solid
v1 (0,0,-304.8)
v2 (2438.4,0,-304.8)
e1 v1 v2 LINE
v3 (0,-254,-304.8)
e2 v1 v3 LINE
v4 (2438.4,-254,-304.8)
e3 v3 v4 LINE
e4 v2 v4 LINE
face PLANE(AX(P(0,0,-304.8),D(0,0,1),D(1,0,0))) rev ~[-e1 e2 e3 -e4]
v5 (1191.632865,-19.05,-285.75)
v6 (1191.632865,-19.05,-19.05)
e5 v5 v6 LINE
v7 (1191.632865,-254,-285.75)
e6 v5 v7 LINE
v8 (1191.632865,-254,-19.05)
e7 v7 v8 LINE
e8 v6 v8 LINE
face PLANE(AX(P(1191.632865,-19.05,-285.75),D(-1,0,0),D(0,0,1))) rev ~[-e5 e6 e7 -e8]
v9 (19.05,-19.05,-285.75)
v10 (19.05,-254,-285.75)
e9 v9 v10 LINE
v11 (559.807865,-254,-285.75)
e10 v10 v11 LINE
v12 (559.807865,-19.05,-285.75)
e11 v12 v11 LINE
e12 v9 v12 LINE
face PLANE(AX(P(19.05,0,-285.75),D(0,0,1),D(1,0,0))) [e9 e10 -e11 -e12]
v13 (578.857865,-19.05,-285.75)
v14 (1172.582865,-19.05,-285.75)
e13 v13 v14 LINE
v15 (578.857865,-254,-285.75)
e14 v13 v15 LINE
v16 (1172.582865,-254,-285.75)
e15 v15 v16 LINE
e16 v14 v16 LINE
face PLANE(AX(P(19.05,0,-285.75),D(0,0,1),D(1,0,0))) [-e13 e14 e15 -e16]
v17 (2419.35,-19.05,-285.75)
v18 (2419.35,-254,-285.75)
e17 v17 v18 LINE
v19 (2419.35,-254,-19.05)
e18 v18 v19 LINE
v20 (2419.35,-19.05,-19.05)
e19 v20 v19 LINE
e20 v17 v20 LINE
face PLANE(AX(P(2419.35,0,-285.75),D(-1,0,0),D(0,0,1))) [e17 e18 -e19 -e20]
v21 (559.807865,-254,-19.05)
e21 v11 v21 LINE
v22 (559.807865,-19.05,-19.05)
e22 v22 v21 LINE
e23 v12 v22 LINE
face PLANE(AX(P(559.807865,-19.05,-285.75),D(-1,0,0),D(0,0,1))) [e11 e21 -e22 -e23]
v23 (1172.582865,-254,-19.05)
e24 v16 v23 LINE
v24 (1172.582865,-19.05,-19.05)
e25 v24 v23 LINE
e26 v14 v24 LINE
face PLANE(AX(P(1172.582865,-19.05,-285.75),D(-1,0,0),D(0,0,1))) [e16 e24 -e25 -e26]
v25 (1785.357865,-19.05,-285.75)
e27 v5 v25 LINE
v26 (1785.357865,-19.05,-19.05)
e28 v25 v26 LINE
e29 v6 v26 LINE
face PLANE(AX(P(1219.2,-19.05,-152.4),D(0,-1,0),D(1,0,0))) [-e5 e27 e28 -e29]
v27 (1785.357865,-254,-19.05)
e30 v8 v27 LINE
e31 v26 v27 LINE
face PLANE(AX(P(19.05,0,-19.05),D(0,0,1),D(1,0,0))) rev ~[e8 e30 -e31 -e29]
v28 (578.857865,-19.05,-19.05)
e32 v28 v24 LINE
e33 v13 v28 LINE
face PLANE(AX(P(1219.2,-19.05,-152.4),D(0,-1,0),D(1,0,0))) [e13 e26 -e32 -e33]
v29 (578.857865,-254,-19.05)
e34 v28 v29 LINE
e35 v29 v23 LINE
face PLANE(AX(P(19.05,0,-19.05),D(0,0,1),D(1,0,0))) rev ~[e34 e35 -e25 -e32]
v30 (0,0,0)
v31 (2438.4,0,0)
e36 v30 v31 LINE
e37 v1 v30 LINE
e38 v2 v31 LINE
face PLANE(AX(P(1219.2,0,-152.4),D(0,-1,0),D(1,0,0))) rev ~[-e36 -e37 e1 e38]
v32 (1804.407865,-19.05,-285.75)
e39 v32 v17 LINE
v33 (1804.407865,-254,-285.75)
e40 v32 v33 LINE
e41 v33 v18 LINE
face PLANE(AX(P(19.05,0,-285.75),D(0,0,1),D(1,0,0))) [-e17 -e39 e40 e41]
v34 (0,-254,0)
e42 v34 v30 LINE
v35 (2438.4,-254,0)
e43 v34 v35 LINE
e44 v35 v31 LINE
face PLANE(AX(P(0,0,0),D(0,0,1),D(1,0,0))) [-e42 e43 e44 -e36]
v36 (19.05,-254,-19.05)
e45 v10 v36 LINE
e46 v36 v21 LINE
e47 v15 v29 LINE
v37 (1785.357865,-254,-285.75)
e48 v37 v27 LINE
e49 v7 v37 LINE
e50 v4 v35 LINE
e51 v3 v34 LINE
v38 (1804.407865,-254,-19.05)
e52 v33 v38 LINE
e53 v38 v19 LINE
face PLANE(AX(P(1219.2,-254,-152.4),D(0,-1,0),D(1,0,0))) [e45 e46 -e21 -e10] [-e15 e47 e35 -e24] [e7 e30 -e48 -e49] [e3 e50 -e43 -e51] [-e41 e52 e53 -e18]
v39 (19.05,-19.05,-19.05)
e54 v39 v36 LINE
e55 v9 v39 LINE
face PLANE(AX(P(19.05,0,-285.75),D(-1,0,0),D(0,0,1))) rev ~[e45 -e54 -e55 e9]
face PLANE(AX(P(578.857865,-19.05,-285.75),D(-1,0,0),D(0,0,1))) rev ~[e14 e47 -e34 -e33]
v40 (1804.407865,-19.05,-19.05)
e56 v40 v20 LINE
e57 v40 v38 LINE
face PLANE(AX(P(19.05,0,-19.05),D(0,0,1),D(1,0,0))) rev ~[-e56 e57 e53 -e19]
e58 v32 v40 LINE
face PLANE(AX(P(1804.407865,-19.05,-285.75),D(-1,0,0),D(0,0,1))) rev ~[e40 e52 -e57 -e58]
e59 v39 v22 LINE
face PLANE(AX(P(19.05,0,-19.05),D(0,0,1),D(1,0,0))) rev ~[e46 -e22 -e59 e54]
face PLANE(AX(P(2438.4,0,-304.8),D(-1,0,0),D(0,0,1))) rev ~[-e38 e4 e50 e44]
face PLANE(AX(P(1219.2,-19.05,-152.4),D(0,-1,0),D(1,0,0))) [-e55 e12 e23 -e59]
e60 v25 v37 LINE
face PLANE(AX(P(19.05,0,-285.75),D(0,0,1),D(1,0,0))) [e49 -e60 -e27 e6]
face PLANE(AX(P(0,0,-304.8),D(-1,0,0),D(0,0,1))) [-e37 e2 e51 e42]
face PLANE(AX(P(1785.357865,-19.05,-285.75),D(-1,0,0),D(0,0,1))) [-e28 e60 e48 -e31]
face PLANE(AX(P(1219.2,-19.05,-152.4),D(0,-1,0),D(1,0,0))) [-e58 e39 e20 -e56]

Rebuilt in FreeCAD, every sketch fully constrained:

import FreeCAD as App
import Part
import Sketcher
Q = App.Units.Quantity

doc = App.newDocument("Part")
body = doc.addObject("PartDesign::Body", "Body")

# Sketch on XZ plane
sketch1 = body.newObject("Sketcher::SketchObject", "Sketch")
sketch1.AttachmentSupport = (doc.getObject("XZ_Plane"), [""])
sketch1.MapMode = "FlatFace"
sketch1.addGeometry([
    Part.LineSegment(App.Vector(0, 0, 0), App.Vector(0, -305, 0)),  # 0
    Part.LineSegment(App.Vector(0, -305, 0), App.Vector(2438, -305, 0)),  # 1
    Part.LineSegment(App.Vector(2438, -305, 0), App.Vector(2438, 0, 0)),  # 2
    Part.LineSegment(App.Vector(2438, 0, 0), App.Vector(0, 0, 0)),  # 3
    Part.LineSegment(App.Vector(2419, -286, 0), App.Vector(19, -286, 0)),  # 4
    Part.LineSegment(App.Vector(19, -286, 0), App.Vector(19, -19, 0)),  # 5
    Part.LineSegment(App.Vector(19, -19, 0), App.Vector(2419, -19, 0)),  # 6
    Part.LineSegment(App.Vector(2419, -19, 0), App.Vector(2419, -286, 0)),  # 7
], False)
sketch1.addConstraint([
    Sketcher.Constraint("Coincident", 0, 2, 1, 1),
    Sketcher.Constraint("Coincident", 1, 2, 2, 1),
    Sketcher.Constraint("Coincident", 2, 2, 3, 1),
    Sketcher.Constraint("Coincident", 3, 2, 0, 1),
    Sketcher.Constraint("Coincident", 4, 2, 5, 1),
    Sketcher.Constraint("Coincident", 5, 2, 6, 1),
    Sketcher.Constraint("Coincident", 6, 2, 7, 1),
    Sketcher.Constraint("Coincident", 7, 2, 4, 1),
    Sketcher.Constraint("Vertical", 0),
    Sketcher.Constraint("Horizontal", 1),
    Sketcher.Constraint("Vertical", 2),
    Sketcher.Constraint("Horizontal", 3),
    Sketcher.Constraint("Horizontal", 4),
    Sketcher.Constraint("Vertical", 5),
    Sketcher.Constraint("Horizontal", 6),
    Sketcher.Constraint("Vertical", 7),
    Sketcher.Constraint("Coincident", 3, 2, -1, 1),
    Sketcher.Constraint("DistanceX", 1, 1, 1, 2, Q("96 in")),
    Sketcher.Constraint("DistanceY", 0, 2, 0, 1, Q("12 in")),
    Sketcher.Constraint("DistanceX", 4, 2, 4, 1, Q("94.5 in")),
    Sketcher.Constraint("DistanceY", 5, 1, 5, 2, Q("10.5 in")),
    Sketcher.Constraint("DistanceX", -1, 1, 4, 2, Q("0.75 in")),
    Sketcher.Constraint("DistanceY", 4, 2, -1, 1, Q("11.25 in")),
])
pad1 = body.newObject("PartDesign::Pad", "Pad")
pad1.Profile = sketch1
pad1.Length = Q("10 in")

# Sketch on XZ plane
sketch2 = body.newObject("Sketcher::SketchObject", "Sketch001")
sketch2.AttachmentSupport = (doc.getObject("XZ_Plane"), [""])
sketch2.MapMode = "FlatFace"
sketch2.addGeometry([
    Part.LineSegment(App.Vector(0, 0, 0), App.Vector(0, -305, 0)),
    Part.LineSegment(App.Vector(0, -305, 0), App.Vector(2438, -305, 0)),
    Part.LineSegment(App.Vector(2438, -305, 0), App.Vector(2438, 0, 0)),
    Part.LineSegment(App.Vector(2438, 0, 0), App.Vector(0, 0, 0)),
], False)
sketch2.addConstraint([
    Sketcher.Constraint("Coincident", 0, 2, 1, 1),
    Sketcher.Constraint("Coincident", 1, 2, 2, 1),
    Sketcher.Constraint("Coincident", 2, 2, 3, 1),
    Sketcher.Constraint("Coincident", 3, 2, 0, 1),
    Sketcher.Constraint("Vertical", 0),
    Sketcher.Constraint("Horizontal", 1),
    Sketcher.Constraint("Vertical", 2),
    Sketcher.Constraint("Horizontal", 3),
    Sketcher.Constraint("Coincident", 3, 2, -1, 1),
    Sketcher.Constraint("DistanceX", 1, 1, 1, 2, Q("96 in")),
    Sketcher.Constraint("DistanceY", 0, 2, 0, 1, Q("12 in")),
])
pad2 = body.newObject("PartDesign::Pad", "Pad001")
pad2.Profile = sketch2
pad2.Length = Q("0.75 in")

# Sketch on XZ plane
sketch3 = body.newObject("Sketcher::SketchObject", "Sketch002")
sketch3.AttachmentSupport = (doc.getObject("XZ_Plane"), [""])
sketch3.MapMode = "FlatFace"
sketch3.AttachmentOffset = App.Placement(App.Vector(0, 0, 0.75 * 25.4), App.Rotation())
sketch3.addGeometry([
    Part.LineSegment(App.Vector(1173, -19, 0), App.Vector(1173, -286, 0)),  # 0
    Part.LineSegment(App.Vector(1173, -286, 0), App.Vector(1192, -286, 0)),  # 1
    Part.LineSegment(App.Vector(1192, -286, 0), App.Vector(1192, -19, 0)),  # 2
    Part.LineSegment(App.Vector(1192, -19, 0), App.Vector(1173, -19, 0)),  # 3
    Part.LineSegment(App.Vector(1785, -19, 0), App.Vector(1785, -286, 0)),  # 4
    Part.LineSegment(App.Vector(1785, -286, 0), App.Vector(1804, -286, 0)),  # 5
    Part.LineSegment(App.Vector(1804, -286, 0), App.Vector(1804, -19, 0)),  # 6
    Part.LineSegment(App.Vector(1804, -19, 0), App.Vector(1785, -19, 0)),  # 7
    Part.LineSegment(App.Vector(560, -19, 0), App.Vector(560, -286, 0)),  # 8
    Part.LineSegment(App.Vector(560, -286, 0), App.Vector(579, -286, 0)),  # 9
    Part.LineSegment(App.Vector(579, -286, 0), App.Vector(579, -19, 0)),  # 10
    Part.LineSegment(App.Vector(579, -19, 0), App.Vector(560, -19, 0)),  # 11
], False)
sketch3.addConstraint([
    Sketcher.Constraint("Coincident", 0, 2, 1, 1),
    Sketcher.Constraint("Coincident", 1, 2, 2, 1),
    Sketcher.Constraint("Coincident", 2, 2, 3, 1),
    Sketcher.Constraint("Coincident", 3, 2, 0, 1),
    Sketcher.Constraint("Coincident", 4, 2, 5, 1),
    Sketcher.Constraint("Coincident", 5, 2, 6, 1),
    Sketcher.Constraint("Coincident", 6, 2, 7, 1),
    Sketcher.Constraint("Coincident", 7, 2, 4, 1),
    Sketcher.Constraint("Coincident", 8, 2, 9, 1),
    Sketcher.Constraint("Coincident", 9, 2, 10, 1),
    Sketcher.Constraint("Coincident", 10, 2, 11, 1),
    Sketcher.Constraint("Coincident", 11, 2, 8, 1),
    Sketcher.Constraint("Vertical", 0),
    Sketcher.Constraint("Horizontal", 1),
    Sketcher.Constraint("Vertical", 2),
    Sketcher.Constraint("Horizontal", 3),
    Sketcher.Constraint("Vertical", 4),
    Sketcher.Constraint("Horizontal", 5),
    Sketcher.Constraint("Vertical", 6),
    Sketcher.Constraint("Horizontal", 7),
    Sketcher.Constraint("Vertical", 8),
    Sketcher.Constraint("Horizontal", 9),
    Sketcher.Constraint("Vertical", 10),
    Sketcher.Constraint("Horizontal", 11),
    Sketcher.Constraint("Horizontal", 1, 2, 4, 2),
    Sketcher.Constraint("Horizontal", 3, 2, 6, 2),
    Sketcher.Constraint("Horizontal", 5, 2, 8, 2),
    Sketcher.Constraint("Horizontal", 7, 2, 10, 2),
    Sketcher.Constraint("Equal", 3, 5),
    Sketcher.Constraint("Equal", 7, 9),
    Sketcher.Constraint("DistanceY", 0, 2, 0, 1, Q("10.5 in")),
    Sketcher.Constraint("DistanceX", 1, 1, 1, 2, Q("0.75 in")),
    Sketcher.Constraint("DistanceY", 0, 2, -1, 1, Q("11.25 in")),
    Sketcher.Constraint("DistanceX", 8, 2, 4, 2, Q("48.25 in")),
    Sketcher.Constraint("DistanceX", 1, 2, 4, 2, Q("23.375 in")),
    Sketcher.Constraint("DistanceX", -1, 1, 0, 2, 1172.582865),
])
pad3 = body.newObject("PartDesign::Pad", "Pad002")
pad3.Profile = sketch3
pad3.Length = Q("9.25 in")

doc.recompute()
